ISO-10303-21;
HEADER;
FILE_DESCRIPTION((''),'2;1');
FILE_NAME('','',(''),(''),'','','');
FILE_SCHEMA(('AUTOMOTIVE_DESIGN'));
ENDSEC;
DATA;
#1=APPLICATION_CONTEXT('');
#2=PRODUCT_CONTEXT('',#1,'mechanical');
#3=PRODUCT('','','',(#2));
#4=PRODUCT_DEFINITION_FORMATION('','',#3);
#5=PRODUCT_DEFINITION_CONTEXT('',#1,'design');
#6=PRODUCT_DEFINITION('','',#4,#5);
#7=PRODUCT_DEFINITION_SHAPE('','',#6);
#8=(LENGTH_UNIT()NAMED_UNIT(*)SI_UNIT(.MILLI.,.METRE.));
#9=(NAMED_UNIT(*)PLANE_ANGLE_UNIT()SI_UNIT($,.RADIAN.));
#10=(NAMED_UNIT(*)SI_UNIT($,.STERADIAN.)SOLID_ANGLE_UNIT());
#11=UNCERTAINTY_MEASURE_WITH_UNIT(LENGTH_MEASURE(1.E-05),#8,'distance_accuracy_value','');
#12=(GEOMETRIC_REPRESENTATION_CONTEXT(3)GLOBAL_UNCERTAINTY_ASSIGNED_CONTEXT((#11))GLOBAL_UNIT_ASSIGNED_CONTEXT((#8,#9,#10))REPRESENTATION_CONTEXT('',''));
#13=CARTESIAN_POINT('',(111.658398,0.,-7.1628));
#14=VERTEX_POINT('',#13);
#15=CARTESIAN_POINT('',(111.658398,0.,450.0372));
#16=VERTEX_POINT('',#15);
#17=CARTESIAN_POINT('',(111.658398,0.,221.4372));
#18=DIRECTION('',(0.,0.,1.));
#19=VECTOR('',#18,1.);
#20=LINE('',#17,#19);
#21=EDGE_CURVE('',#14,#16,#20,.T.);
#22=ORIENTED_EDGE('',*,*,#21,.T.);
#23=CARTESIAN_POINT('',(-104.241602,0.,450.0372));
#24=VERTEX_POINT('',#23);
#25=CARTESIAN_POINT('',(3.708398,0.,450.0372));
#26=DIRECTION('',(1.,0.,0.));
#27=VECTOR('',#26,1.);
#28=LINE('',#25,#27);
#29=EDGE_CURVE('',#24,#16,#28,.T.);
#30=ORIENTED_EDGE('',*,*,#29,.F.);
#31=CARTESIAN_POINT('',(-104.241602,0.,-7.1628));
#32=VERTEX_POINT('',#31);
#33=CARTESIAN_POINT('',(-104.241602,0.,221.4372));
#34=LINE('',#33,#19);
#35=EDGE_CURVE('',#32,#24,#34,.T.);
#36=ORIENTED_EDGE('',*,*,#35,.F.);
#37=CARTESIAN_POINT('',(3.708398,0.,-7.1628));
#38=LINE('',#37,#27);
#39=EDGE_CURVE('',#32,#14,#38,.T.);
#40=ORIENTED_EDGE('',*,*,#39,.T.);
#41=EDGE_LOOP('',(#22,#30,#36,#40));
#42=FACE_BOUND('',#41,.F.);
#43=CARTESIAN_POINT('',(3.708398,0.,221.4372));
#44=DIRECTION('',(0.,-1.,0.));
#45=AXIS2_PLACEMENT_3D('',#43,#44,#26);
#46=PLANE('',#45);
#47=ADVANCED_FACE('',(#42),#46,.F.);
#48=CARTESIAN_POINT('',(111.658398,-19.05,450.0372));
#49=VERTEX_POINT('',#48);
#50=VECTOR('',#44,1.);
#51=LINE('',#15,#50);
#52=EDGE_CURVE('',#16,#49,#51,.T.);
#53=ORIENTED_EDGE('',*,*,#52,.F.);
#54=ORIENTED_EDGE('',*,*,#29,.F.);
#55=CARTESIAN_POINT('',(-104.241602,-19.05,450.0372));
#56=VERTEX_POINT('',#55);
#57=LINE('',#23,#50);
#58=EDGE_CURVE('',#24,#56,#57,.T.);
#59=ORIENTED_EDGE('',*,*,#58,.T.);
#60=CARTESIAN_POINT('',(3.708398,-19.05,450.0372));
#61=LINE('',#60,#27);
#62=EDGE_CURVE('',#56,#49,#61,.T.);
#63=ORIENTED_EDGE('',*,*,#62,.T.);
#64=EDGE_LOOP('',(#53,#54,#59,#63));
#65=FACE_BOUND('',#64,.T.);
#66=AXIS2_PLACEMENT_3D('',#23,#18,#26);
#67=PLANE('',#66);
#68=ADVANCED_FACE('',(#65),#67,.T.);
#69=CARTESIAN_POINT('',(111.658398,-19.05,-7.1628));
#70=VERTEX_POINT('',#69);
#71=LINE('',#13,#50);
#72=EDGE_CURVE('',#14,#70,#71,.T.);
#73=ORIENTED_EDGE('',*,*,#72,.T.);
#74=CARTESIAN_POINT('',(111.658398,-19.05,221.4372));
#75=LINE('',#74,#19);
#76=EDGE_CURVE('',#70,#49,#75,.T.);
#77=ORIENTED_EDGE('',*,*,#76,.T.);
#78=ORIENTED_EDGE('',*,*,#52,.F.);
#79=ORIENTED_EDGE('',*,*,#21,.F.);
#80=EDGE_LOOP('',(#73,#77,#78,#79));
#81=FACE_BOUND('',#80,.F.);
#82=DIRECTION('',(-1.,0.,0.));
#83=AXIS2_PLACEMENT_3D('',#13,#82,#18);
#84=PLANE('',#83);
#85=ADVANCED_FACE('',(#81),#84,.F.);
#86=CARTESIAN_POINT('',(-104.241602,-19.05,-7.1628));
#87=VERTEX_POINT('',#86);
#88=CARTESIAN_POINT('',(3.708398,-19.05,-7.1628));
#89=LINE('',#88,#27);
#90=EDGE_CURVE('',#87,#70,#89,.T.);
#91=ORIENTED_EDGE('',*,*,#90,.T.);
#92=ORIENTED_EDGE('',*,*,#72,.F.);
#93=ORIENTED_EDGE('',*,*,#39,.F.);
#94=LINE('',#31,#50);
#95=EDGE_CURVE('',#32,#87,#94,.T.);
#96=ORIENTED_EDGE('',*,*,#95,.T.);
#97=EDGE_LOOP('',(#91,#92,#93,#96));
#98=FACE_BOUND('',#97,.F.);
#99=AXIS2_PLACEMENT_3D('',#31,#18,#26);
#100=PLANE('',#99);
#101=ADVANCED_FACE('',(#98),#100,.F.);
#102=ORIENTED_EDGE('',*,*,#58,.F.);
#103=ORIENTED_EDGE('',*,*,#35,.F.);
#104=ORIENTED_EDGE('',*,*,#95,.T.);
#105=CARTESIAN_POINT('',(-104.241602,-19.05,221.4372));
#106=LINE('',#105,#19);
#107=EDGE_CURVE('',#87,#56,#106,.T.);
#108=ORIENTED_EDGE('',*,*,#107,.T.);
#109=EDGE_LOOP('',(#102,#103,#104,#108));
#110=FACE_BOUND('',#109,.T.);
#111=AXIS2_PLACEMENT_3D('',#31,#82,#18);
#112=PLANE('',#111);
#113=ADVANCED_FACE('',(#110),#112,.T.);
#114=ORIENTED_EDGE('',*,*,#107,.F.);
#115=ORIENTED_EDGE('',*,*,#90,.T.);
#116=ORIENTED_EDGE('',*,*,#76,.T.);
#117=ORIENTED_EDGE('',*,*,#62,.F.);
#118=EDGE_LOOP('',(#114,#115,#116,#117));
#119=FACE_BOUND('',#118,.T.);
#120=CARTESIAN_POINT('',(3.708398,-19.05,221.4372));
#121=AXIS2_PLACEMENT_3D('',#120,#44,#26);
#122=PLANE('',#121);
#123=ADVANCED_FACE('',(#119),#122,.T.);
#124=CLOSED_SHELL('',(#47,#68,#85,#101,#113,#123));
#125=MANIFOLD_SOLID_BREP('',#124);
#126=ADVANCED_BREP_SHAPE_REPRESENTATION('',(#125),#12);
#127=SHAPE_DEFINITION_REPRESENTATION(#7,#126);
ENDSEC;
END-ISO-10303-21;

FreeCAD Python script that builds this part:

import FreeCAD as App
import Part
import Sketcher
Q = App.Units.Quantity

doc = App.newDocument("Part")
body = doc.addObject("PartDesign::Body", "Body")

# Sketch on XZ plane
sketch1 = doc.addObject("Sketcher::SketchObject", "Sketch")
body.addObject(sketch1)
sketch1.AttachmentSupport = (doc.XZ_Plane, [""])
sketch1.MapMode = "FlatFace"
sketch1.addGeometry(Part.LineSegment(App.Vector(-104, 450, 0), App.Vector(-104, -7, 0)), False)
sketch1.addGeometry(Part.LineSegment(App.Vector(-104, -7, 0), App.Vector(112, -7, 0)), False)
sketch1.addGeometry(Part.LineSegment(App.Vector(112, -7, 0), App.Vector(112, 450, 0)), False)
sketch1.addGeometry(Part.LineSegment(App.Vector(112, 450, 0), App.Vector(-104, 450, 0)), False)
sketch1.addConstraint(Sketcher.Constraint("Coincident", 0, 2, 1, 1))
sketch1.addConstraint(Sketcher.Constraint("Coincident", 1, 2, 2, 1))
sketch1.addConstraint(Sketcher.Constraint("Coincident", 2, 2, 3, 1))
sketch1.addConstraint(Sketcher.Constraint("Coincident", 3, 2, 0, 1))
sketch1.addConstraint(Sketcher.Constraint("Vertical", 0))
sketch1.addConstraint(Sketcher.Constraint("Horizontal", 1))
sketch1.addConstraint(Sketcher.Constraint("Vertical", 2))
sketch1.addConstraint(Sketcher.Constraint("Horizontal", 3))
sketch1.addConstraint(Sketcher.Constraint("DistanceY", 0, 2, 0, 1, Q("18 in")))
sketch1.addConstraint(Sketcher.Constraint("DistanceX", 1, 1, 1, 2, Q("8.5 in")))
sketch1.addConstraint(Sketcher.Constraint("DistanceX", 0, 2, -1, 1, Q("4.1040001 in")))
sketch1.addConstraint(Sketcher.Constraint("DistanceY", 0, 2, -1, 1, Q("0.282 in")))
pad1 = doc.addObject("PartDesign::Pad", "Pad")
body.addObject(pad1)
pad1.Profile = sketch1
pad1.Length = Q("0.75 in")

# Sketch on XZ plane
sketch2 = doc.addObject("Sketcher::SketchObject", "Sketch001")
body.addObject(sketch2)
sketch2.AttachmentSupport = (doc.XZ_Plane, [""])
sketch2.MapMode = "FlatFace"
sketch2.AttachmentOffset = App.Placement(App.Vector(0, 0, 0.75 * 25.4), App.Rotation())
sketch2.addGeometry(Part.LineSegment(App.Vector(-89, 450, 0), App.Vector(-89, 341, 0)), False)
sketch2.addGeometry(Part.LineSegment(App.Vector(-89, 341, 0), App.Vector(93, 341, 0)), False)
sketch2.addGeometry(Part.LineSegment(App.Vector(93, 341, 0), App.Vector(93, 450, 0)), False)
sketch2.addGeometry(Part.LineSegment(App.Vector(93, 450, 0), App.Vector(-89, 450, 0)), False)
sketch2.addConstraint(Sketcher.Constraint("Coincident", 0, 2, 1, 1))
sketch2.addConstraint(Sketcher.Constraint("Coincident", 1, 2, 2, 1))
sketch2.addConstraint(Sketcher.Constraint("Coincident", 2, 2, 3, 1))
sketch2.addConstraint(Sketcher.Constraint("Coincident", 3, 2, 0, 1))
sketch2.addConstraint(Sketcher.Constraint("Vertical", 0))
sketch2.addConstraint(Sketcher.Constraint("Horizontal", 1))
sketch2.addConstraint(Sketcher.Constraint("Vertical", 2))
sketch2.addConstraint(Sketcher.Constraint("Horizontal", 3))
sketch2.addConstraint(Sketcher.Constraint("DistanceY", -1, 1, 2, 2, Q("17.718 in")))
sketch2.addConstraint(Sketcher.Constraint("DistanceX", 1, 1, 1, 2, Q("182.078071 mm")))
sketch2.addConstraint(Sketcher.Constraint("DistanceY", 0, 2, 0, 1, Q("109.457333 mm")))
sketch2.addConstraint(Sketcher.Constraint("DistanceX", -1, 1, 1, 2, Q("92.642478 mm")))
pad2 = doc.addObject("PartDesign::Pad", "Pad001")
body.addObject(pad2)
pad2.Profile = sketch2
pad2.Length = Q("0.25 in")
pad2.Reversed = True

doc.recompute()
